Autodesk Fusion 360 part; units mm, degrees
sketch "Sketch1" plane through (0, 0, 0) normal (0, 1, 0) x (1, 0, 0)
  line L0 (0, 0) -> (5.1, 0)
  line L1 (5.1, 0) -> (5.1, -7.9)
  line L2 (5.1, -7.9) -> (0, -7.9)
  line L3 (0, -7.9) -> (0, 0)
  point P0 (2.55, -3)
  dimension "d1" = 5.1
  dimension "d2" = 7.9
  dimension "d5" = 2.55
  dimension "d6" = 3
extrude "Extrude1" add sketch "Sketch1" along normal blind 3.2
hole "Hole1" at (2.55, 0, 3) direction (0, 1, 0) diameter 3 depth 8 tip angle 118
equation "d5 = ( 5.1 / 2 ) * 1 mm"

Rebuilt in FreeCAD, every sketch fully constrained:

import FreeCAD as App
import Part
import Sketcher
Q = App.Units.Quantity

doc = App.newDocument("Part")
params = doc.addObject("Spreadsheet::Sheet", "Params")
for row, (alias, value) in enumerate([
    ("sketch1_width", "5.1 mm"),
    ("sketch1_height", "7.9 mm"),
    ("pad1_length", "3.2 mm"),
    ("sketch2_diameter", "3 mm"),
    ("hole_diameter", "3 mm"),
    ("hole_depth", "8 mm"),
], start=1):
    params.set(f"A{row}", alias)
    params.set(f"B{row}", "=" + value)
    params.setAlias(f"B{row}", alias)

body = doc.addObject("PartDesign::Body", "Body")

# Sketch on XZ plane
sketch1 = doc.addObject("Sketcher::SketchObject", "Sketch")
body.addObject(sketch1)
sketch1.AttachmentSupport = (doc.XZ_Plane, [""])
sketch1.MapMode = "FlatFace"
sketch1.addGeometry([
    Part.LineSegment(App.Vector(5, 0, 0), App.Vector(0, 0, 0)),
    Part.LineSegment(App.Vector(0, 0, 0), App.Vector(0, 8, 0)),
    Part.LineSegment(App.Vector(0, 8, 0), App.Vector(5, 8, 0)),
    Part.LineSegment(App.Vector(5, 8, 0), App.Vector(5, 0, 0)),
], False)
sketch1.addConstraint([
    Sketcher.Constraint("Coincident", 0, 2, 1, 1),
    Sketcher.Constraint("Coincident", 1, 2, 2, 1),
    Sketcher.Constraint("Coincident", 2, 2, 3, 1),
    Sketcher.Constraint("Coincident", 3, 2, 0, 1),
    Sketcher.Constraint("Horizontal", 0),
    Sketcher.Constraint("Vertical", 1),
    Sketcher.Constraint("Horizontal", 2),
    Sketcher.Constraint("Vertical", 3),
    Sketcher.Constraint("Coincident", 0, 2, -1, 1),
    Sketcher.Constraint("DistanceX", 0, 2, 0, 1, Q("5.1 mm")),
    Sketcher.Constraint("DistanceY", 1, 1, 1, 2, Q("7.9 mm")),
])
sketch1.setExpression("Constraints[9]", "Params.sketch1_width")
sketch1.setExpression("Constraints[10]", "Params.sketch1_height")
pad1 = doc.addObject("PartDesign::Pad", "Pad")
body.addObject(pad1)
pad1.Profile = sketch1
pad1.setExpression("Length", "Params.pad1_length")
pad1.Reversed = True

# Sketch on XZ plane
sketch2 = doc.addObject("Sketcher::SketchObject", "Sketch001")
body.addObject(sketch2)
sketch2.AttachmentSupport = (doc.XZ_Plane, [""])
sketch2.MapMode = "FlatFace"
sketch2.addGeometry(Part.Circle(App.Vector(2.5, 3, 0), App.Vector(0, 0, 1), 1.5), False)
sketch2.addConstraint([
    Sketcher.Constraint("Diameter", 0, Q("3 mm")),
    Sketcher.Constraint("DistanceY", -1, 1, 0, 3, Q("3 mm")),
    Sketcher.Constraint("DistanceX", -1, 1, 0, 3, Q("2.55 mm")),
])
sketch2.setExpression("Constraints[0]", "Params.sketch2_diameter")
doc.recompute()
hole = doc.addObject("PartDesign::Hole", "Hole")
body.addObject(hole)
hole.Profile = sketch2
hole.ThreadType = "None"
hole.setExpression("Diameter", "Params.hole_diameter")
hole.DepthType = "Dimension"
hole.setExpression("Depth", "Params.hole_depth")
hole.DrillPoint = "Angled"
hole.DrillPointAngle = 118

doc.recompute()
